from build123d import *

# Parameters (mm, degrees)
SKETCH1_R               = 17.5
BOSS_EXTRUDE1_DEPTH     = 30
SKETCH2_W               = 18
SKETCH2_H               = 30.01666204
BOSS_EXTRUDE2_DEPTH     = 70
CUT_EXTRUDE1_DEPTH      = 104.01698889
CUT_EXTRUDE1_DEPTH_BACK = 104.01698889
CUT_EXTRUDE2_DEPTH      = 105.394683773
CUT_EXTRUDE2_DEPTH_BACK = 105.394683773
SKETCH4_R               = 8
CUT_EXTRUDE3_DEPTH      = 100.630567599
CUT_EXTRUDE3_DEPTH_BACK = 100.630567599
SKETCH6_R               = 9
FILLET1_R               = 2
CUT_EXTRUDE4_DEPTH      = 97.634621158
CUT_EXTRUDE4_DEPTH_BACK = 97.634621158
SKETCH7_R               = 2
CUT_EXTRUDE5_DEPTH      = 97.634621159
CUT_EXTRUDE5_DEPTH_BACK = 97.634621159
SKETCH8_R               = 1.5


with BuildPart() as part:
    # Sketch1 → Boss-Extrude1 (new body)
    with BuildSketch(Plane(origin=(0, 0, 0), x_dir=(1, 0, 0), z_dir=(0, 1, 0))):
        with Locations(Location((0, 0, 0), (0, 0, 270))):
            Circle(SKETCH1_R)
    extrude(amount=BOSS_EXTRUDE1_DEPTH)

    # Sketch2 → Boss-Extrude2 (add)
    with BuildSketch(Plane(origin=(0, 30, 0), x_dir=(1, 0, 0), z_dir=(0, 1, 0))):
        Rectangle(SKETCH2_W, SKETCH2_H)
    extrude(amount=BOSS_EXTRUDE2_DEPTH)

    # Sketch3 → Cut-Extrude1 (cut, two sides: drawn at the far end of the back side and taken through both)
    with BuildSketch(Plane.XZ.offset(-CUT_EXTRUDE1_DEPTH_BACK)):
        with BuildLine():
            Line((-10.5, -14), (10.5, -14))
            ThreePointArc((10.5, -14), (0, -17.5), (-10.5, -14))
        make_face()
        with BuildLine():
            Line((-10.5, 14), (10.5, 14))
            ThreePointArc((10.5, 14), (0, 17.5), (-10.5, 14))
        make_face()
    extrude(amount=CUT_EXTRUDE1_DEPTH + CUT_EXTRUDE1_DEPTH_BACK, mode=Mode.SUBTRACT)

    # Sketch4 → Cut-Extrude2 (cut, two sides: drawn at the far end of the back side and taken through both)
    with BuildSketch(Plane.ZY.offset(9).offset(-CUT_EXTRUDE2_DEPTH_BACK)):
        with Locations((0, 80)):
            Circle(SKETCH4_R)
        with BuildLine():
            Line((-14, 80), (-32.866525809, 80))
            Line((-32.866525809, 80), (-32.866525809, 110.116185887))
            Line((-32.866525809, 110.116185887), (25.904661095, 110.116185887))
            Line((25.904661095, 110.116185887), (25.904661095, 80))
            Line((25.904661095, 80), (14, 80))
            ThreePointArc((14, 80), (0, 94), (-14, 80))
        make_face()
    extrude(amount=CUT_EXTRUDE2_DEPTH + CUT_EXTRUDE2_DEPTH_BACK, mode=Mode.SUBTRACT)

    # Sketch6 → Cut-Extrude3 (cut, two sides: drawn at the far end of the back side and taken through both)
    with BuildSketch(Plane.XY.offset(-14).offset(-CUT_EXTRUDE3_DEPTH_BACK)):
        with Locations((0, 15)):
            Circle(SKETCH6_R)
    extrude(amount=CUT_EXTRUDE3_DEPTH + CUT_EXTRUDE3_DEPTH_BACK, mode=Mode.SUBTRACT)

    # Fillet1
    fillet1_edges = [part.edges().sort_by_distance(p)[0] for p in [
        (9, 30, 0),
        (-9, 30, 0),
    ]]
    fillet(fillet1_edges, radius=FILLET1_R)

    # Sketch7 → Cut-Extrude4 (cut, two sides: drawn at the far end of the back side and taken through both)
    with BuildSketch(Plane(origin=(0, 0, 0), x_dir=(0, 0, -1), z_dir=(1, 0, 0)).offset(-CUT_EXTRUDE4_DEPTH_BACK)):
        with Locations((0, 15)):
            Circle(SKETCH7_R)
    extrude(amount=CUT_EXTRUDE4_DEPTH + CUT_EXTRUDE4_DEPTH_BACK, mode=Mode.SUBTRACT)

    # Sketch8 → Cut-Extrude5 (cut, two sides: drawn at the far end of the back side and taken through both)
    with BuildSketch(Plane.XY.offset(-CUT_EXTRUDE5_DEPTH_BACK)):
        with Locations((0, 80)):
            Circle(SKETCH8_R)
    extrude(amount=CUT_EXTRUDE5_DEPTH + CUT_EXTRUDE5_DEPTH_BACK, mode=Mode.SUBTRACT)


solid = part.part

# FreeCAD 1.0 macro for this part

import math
import FreeCAD as App
import Part
import Sketcher
from FreeCAD import Vector


def edges_at(feature, points):
    """Names of the edges that pass closest to the given points."""
    edges = feature.Shape.Edges
    near = lambda p: min(range(len(edges)), key=lambda i: edges[i].distToShape(Part.Vertex(*p))[0])
    return sorted({f"Edge{near(p) + 1}" for p in points})


def add_polygon(sketch, points):
    """Adds a closed chain of lines whose ends are joined by coincident constraints."""
    first, n = sketch.GeometryCount, len(points)
    for a, b in zip(points, points[1:] + points[:1]):
        sketch.addGeometry(Part.LineSegment(App.Vector(*a, 0), App.Vector(*b, 0)), False)
    for i in range(n):
        sketch.addConstraint(Sketcher.Constraint("Coincident", first + i, 2, first + (i + 1) % n, 1))

doc = App.newDocument("Part")
body = doc.addObject("PartDesign::Body", "Body")

# Sketch on XZ plane
sketch1 = body.newObject("Sketcher::SketchObject", "Sketch")
sketch1.AttachmentSupport = (doc.getObject("XZ_Plane"), [""])
sketch1.MapMode = "FlatFace"
sketch1.addGeometry(Part.Circle(Vector(0, 0, 0), Vector(0, 0, 1), 18), False)
sketch1.addConstraint([
    Sketcher.Constraint("Coincident", 0, 3, -1, 1),
    Sketcher.Constraint("Diameter", 0, 35.0),
])
pad1 = body.newObject("PartDesign::Pad", "Pad")
pad1.Profile = sketch1
pad1.Length = 30
pad1.Reversed = True

# Sketch on XZ plane
sketch2 = body.newObject("Sketcher::SketchObject", "Sketch001")
sketch2.AttachmentSupport = (doc.getObject("XZ_Plane"), [""])
sketch2.MapMode = "FlatFace"
sketch2.AttachmentOffset = App.Placement(Vector(0, 0, -30), App.Rotation())
add_polygon(sketch2, [(-9, -15), (-9, 15), (9, 15), (9, -15)])  # lines 0-3
sketch2.addConstraint([
    Sketcher.Constraint("Vertical", 0),
    Sketcher.Constraint("Horizontal", 1),
    Sketcher.Constraint("Vertical", 2),
    Sketcher.Constraint("Horizontal", 3),
    Sketcher.Constraint("Symmetric", 0, 2, 2, 2, -1, 1),
    Sketcher.Constraint("DistanceX", 1, 1, 1, 2, 18.0),
    Sketcher.Constraint("DistanceY", 0, 1, 0, 2, 30.016662),
])
pad2 = body.newObject("PartDesign::Pad", "Pad001")
pad2.Profile = sketch2
pad2.Length = 70
pad2.Reversed = True

# Sketch on XZ plane
sketch3 = body.newObject("Sketcher::SketchObject", "Sketch002")
sketch3.AttachmentSupport = (doc.getObject("XZ_Plane"), [""])
sketch3.MapMode = "FlatFace"
sketch3.addGeometry([
    Part.LineSegment(Vector(10, -14, 0), Vector(-10, -14, 0)),
    Part.ArcOfCircle(Part.Circle(Vector(0, 0, 0), Vector(0, 0, 1), 18), math.radians(-127), math.radians(-53)),
    Part.LineSegment(Vector(-10, 14, 0), Vector(10, 14, 0)),
    Part.ArcOfCircle(Part.Circle(Vector(0, 0, 0), Vector(0, 0, 1), 18), math.radians(53), math.radians(127)),
], False)
sketch3.addConstraint([
    Sketcher.Constraint("Coincident", 0, 1, 1, 2),
    Sketcher.Constraint("Coincident", 1, 1, 0, 2),
    Sketcher.Constraint("Coincident", 2, 1, 3, 2),
    Sketcher.Constraint("Coincident", 3, 1, 2, 2),
    Sketcher.Constraint("Horizontal", 0),
    Sketcher.Constraint("Horizontal", 2),
    Sketcher.Constraint("Coincident", 1, 3, -1, 1),
    Sketcher.Constraint("Coincident", 3, 3, -1, 1),
    Sketcher.Constraint("Equal", 1, 3),
    Sketcher.Constraint("Vertical", 1, 1, 2, 1),
    Sketcher.Constraint("Radius", 1, 17.5),
    Sketcher.Constraint("DistanceX", 0, 2, 0, 1, 21.0),
])
pocket1 = body.newObject("PartDesign::Pocket", "Pocket")
pocket1.Profile = sketch3
pocket1.Type = "ThroughAll"
pocket1.Midplane = True

# Sketch on YZ plane
sketch4 = body.newObject("Sketcher::SketchObject", "Sketch003")
sketch4.AttachmentSupport = (doc.getObject("YZ_Plane"), [""])
sketch4.MapMode = "FlatFace"
sketch4.AttachmentOffset = App.Placement(Vector(0, 0, -9), App.Rotation())
sketch4.addGeometry([
    Part.Circle(Vector(80, 0, 0), Vector(0, 0, 1), 8),  # 0
    Part.LineSegment(Vector(80, -33, 0), Vector(80, -14, 0)),  # 1
    Part.ArcOfCircle(Part.Circle(Vector(80, 0, 0), Vector(0, 0, 1), 14), math.radians(-90), math.radians(90)),  # 2
    Part.LineSegment(Vector(80, 14, 0), Vector(80, 26, 0)),  # 3
    Part.LineSegment(Vector(80, 26, 0), Vector(110, 26, 0)),  # 4
    Part.LineSegment(Vector(110, 26, 0), Vector(110, -33, 0)),  # 5
    Part.LineSegment(Vector(110, -33, 0), Vector(80, -33, 0)),  # 6
], False)
sketch4.addConstraint([
    Sketcher.Constraint("Coincident", 1, 2, 2, 1),
    Sketcher.Constraint("Coincident", 2, 2, 3, 1),
    Sketcher.Constraint("Coincident", 3, 2, 4, 1),
    Sketcher.Constraint("Coincident", 4, 2, 5, 1),
    Sketcher.Constraint("Coincident", 5, 2, 6, 1),
    Sketcher.Constraint("Coincident", 6, 2, 1, 1),
    Sketcher.Constraint("Vertical", 1),
    Sketcher.Constraint("Vertical", 3),
    Sketcher.Constraint("Horizontal", 4),
    Sketcher.Constraint("Vertical", 5),
    Sketcher.Constraint("Horizontal", 6),
    Sketcher.Constraint("Coincident", 2, 3, 0, 3),
    Sketcher.Constraint("Symmetric", 1, 2, 2, 2, -1),
    Sketcher.Constraint("Vertical", 2, 3, 1, 2),
    Sketcher.Constraint("Diameter", 0, 16.0),
    Sketcher.Constraint("Radius", 2, 14.0),
    Sketcher.Constraint("DistanceX", -1, 1, 0, 3, 80.0),
    Sketcher.Constraint("DistanceY", 3, 1, 3, 2, 11.904661),
    Sketcher.Constraint("DistanceX", 4, 1, 4, 2, 30.116186),
    Sketcher.Constraint("DistanceY", 1, 1, 1, 2, 18.866526),
])
pocket2 = body.newObject("PartDesign::Pocket", "Pocket001")
pocket2.Profile = sketch4
pocket2.Type = "ThroughAll"
pocket2.Midplane = True

# Sketch on XY plane
sketch5 = body.newObject("Sketcher::SketchObject", "Sketch004")
sketch5.AttachmentSupport = (doc.getObject("XY_Plane"), [""])
sketch5.MapMode = "FlatFace"
sketch5.AttachmentOffset = App.Placement(Vector(0, 0, -14), App.Rotation())
sketch5.addGeometry(Part.Circle(Vector(0, 15, 0), Vector(0, 0, 1), 9), False)
sketch5.addConstraint([
    Sketcher.Constraint("PointOnObject", 0, 3, -2),
    Sketcher.Constraint("Diameter", 0, 18.0),
    Sketcher.Constraint("DistanceY", -1, 1, 0, 3, 15.0),
])
pocket3 = body.newObject("PartDesign::Pocket", "Pocket002")
pocket3.Profile = sketch5
pocket3.Type = "ThroughAll"
pocket3.Midplane = True
doc.recompute()

fillet = body.newObject("PartDesign::Fillet", "Fillet")
fillet.Base = (pocket3, edges_at(pocket3, [(9, 30, 0), (-9, 30, 0)]))
fillet.Radius = 2

# Sketch on YZ plane
sketch6 = body.newObject("Sketcher::SketchObject", "Sketch005")
sketch6.AttachmentSupport = (doc.getObject("YZ_Plane"), [""])
sketch6.MapMode = "FlatFace"
sketch6.addGeometry(Part.Circle(Vector(15, 0, 0), Vector(0, 0, 1), 2), False)
sketch6.addConstraint([
    Sketcher.Constraint("PointOnObject", 0, 3, -1),
    Sketcher.Constraint("Diameter", 0, 4.0),
    Sketcher.Constraint("DistanceX", -1, 1, 0, 3, 15.0),
])
pocket4 = body.newObject("PartDesign::Pocket", "Pocket003")
pocket4.Profile = sketch6
pocket4.Type = "ThroughAll"
pocket4.Midplane = True

# Sketch on XY plane
sketch7 = body.newObject("Sketcher::SketchObject", "Sketch006")
sketch7.AttachmentSupport = (doc.getObject("XY_Plane"), [""])
sketch7.MapMode = "FlatFace"
sketch7.addGeometry(Part.Circle(Vector(0, 80, 0), Vector(0, 0, 1), 1.5), False)
sketch7.addConstraint([
    Sketcher.Constraint("PointOnObject", 0, 3, -2),
    Sketcher.Constraint("Diameter", 0, 3.0),
    Sketcher.Constraint("DistanceY", -1, 1, 0, 3, 80.0),
])
pocket5 = body.newObject("PartDesign::Pocket", "Pocket004")
pocket5.Profile = sketch7
pocket5.Type = "ThroughAll"
pocket5.Midplane = True

doc.recompute()
